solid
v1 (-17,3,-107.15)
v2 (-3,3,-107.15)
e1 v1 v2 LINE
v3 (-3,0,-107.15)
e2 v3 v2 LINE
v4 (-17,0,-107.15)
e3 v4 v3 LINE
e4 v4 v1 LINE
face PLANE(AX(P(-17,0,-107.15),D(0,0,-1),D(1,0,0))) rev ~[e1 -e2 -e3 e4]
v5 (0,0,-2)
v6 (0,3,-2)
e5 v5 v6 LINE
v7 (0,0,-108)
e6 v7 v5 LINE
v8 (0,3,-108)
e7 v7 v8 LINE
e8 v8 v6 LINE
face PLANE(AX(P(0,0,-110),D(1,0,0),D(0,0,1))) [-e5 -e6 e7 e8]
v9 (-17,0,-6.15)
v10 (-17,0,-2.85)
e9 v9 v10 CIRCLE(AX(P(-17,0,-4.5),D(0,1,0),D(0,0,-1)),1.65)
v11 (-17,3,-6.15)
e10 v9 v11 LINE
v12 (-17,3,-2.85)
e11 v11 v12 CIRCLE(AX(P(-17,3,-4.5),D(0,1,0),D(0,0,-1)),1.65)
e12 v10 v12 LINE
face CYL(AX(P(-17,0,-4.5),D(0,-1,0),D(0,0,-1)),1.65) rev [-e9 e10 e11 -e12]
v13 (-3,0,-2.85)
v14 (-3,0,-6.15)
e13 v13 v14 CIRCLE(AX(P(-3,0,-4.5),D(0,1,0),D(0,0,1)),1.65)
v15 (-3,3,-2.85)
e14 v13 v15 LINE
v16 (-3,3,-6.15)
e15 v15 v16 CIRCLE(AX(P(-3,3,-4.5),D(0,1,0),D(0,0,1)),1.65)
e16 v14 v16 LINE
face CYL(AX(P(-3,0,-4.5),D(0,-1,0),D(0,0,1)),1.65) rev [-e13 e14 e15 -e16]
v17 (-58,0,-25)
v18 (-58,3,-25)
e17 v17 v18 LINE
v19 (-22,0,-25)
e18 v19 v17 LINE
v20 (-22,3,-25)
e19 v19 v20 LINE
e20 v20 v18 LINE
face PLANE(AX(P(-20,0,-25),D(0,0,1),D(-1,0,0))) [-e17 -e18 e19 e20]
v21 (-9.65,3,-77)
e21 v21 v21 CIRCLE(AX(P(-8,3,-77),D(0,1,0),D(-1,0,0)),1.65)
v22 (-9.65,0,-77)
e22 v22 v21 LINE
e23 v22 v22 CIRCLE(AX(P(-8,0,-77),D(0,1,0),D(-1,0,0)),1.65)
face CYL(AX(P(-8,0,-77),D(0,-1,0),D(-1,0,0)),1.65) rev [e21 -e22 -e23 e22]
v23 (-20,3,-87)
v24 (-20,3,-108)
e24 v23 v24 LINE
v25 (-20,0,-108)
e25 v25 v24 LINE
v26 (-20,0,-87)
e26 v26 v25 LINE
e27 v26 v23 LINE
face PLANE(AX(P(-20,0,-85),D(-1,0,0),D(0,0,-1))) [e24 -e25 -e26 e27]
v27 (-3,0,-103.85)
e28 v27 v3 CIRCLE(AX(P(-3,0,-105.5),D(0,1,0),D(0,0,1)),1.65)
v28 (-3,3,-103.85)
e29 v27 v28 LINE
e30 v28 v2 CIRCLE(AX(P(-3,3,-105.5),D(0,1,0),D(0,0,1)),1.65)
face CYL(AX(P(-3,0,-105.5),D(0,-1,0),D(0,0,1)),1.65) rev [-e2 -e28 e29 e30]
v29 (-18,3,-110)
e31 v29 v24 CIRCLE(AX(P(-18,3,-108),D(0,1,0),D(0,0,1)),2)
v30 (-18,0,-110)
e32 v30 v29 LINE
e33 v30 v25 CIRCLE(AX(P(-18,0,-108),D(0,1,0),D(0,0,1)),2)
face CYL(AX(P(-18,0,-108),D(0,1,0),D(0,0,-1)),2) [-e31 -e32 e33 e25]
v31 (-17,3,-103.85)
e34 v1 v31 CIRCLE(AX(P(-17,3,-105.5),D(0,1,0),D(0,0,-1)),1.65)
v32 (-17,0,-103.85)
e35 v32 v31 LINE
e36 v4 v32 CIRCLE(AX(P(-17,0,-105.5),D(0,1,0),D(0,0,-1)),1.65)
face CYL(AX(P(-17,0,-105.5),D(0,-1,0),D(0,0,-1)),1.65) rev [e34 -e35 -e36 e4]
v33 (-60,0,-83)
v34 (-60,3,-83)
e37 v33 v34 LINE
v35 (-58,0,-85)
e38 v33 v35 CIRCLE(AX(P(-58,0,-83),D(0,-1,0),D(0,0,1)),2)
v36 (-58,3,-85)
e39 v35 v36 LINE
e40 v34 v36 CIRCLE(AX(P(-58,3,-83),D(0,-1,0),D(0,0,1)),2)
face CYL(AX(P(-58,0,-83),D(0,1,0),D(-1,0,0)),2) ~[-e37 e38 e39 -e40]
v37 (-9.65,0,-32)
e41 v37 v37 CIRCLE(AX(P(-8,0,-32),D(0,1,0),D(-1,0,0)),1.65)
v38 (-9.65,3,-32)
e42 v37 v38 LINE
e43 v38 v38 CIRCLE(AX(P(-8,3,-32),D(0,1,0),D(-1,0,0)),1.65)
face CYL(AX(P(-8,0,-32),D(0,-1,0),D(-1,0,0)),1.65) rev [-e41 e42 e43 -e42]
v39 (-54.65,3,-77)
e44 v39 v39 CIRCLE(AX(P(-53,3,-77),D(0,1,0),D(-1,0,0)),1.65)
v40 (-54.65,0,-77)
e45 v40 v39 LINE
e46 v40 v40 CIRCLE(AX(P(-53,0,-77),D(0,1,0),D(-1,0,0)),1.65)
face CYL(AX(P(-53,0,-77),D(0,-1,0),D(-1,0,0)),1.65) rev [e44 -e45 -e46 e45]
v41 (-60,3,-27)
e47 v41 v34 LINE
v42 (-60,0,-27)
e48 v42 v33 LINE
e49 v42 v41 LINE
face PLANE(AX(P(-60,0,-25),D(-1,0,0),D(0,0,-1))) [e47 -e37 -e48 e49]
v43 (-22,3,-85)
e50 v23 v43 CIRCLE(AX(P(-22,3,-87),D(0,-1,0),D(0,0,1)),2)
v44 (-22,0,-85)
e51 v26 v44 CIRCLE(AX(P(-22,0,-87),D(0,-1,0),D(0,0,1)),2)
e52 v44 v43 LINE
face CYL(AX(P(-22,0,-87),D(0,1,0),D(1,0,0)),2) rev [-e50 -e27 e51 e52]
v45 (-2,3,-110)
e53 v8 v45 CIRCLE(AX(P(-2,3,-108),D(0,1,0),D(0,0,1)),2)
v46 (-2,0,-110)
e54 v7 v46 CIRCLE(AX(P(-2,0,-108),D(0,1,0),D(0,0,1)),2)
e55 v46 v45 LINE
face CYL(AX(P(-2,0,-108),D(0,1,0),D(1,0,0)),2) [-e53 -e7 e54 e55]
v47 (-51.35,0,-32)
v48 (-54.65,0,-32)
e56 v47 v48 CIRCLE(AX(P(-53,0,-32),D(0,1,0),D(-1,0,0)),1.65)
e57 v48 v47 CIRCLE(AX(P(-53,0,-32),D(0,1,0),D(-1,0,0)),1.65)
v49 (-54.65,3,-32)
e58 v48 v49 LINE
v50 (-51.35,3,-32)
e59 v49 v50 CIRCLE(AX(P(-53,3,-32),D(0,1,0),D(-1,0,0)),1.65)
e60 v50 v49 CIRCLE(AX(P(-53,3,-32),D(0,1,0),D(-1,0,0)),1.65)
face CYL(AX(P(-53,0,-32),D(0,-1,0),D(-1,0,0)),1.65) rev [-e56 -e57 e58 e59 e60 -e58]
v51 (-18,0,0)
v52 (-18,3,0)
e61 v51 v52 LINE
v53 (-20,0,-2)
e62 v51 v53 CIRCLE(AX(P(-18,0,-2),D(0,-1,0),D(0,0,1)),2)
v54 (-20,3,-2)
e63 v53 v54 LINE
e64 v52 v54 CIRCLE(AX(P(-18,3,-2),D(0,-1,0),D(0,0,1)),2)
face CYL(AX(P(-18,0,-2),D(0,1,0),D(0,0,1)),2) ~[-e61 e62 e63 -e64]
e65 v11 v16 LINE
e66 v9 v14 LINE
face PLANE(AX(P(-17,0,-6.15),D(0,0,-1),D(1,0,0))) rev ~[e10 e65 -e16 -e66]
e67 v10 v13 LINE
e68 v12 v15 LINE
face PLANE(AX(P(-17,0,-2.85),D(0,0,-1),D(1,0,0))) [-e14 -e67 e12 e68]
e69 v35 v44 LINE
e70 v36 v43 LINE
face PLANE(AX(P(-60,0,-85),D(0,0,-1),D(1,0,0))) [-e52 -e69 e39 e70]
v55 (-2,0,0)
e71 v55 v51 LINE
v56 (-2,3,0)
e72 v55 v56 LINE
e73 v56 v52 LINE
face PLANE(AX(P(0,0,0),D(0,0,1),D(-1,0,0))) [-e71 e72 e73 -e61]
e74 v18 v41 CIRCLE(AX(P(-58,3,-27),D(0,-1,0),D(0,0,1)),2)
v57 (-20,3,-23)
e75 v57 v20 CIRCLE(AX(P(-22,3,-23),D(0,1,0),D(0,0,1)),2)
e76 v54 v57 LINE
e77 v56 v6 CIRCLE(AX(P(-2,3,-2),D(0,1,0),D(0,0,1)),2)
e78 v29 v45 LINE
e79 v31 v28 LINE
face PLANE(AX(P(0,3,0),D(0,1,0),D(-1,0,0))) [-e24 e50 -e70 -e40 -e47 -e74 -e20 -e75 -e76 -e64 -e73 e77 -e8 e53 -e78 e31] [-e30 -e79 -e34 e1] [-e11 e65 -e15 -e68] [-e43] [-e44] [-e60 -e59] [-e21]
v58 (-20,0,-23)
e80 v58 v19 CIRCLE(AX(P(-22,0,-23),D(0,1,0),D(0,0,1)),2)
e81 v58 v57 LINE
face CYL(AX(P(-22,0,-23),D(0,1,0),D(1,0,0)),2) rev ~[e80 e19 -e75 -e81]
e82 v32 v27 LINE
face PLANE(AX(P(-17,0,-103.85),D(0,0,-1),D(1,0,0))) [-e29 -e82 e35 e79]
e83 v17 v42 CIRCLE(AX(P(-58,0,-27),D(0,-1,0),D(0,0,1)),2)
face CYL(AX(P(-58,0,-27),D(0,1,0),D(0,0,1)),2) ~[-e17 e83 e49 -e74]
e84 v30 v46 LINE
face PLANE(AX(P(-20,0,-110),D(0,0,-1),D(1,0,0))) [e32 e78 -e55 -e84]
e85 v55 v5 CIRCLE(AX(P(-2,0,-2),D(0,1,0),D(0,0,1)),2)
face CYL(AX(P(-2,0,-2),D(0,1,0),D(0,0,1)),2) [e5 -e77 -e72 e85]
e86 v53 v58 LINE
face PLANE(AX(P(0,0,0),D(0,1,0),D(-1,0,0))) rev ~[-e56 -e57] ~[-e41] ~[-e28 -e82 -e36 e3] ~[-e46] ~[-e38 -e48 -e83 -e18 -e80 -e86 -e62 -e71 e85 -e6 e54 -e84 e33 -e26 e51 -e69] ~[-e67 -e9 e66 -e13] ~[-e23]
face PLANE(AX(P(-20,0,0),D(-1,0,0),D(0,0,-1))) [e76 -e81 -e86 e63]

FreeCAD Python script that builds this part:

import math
import FreeCAD as App
import Part
import Sketcher

V = App.Vector
Q = App.Units.Quantity


def edges_at(feature, points):
    """Names of the edges that pass closest to the given points."""
    edges = feature.Shape.Edges
    near = lambda p: min(range(len(edges)), key=lambda i: edges[i].distToShape(Part.Vertex(*p))[0])
    return sorted({f"Edge{near(p) + 1}" for p in points})

doc = App.newDocument("Part")
body = doc.addObject("PartDesign::Body", "Body")

# Sketch on XZ plane
sketch1 = body.newObject("Sketcher::SketchObject", "Sketch")
sketch1.AttachmentSupport = (doc.getObject("XZ_Plane"), [""])
sketch1.MapMode = "FlatFace"
sketch1.addGeometry(Part.LineSegment(V(-20, 0, 0), V(0, 0, 0)), False)
sketch1.addGeometry(Part.LineSegment(V(0, 0, 0), V(0, -110, 0)), False)
sketch1.addGeometry(Part.LineSegment(V(0, -110, 0), V(-20, -110, 0)), False)
sketch1.addGeometry(Part.LineSegment(V(-20, -110, 0), V(-20, -85, 0)), False)
sketch1.addGeometry(Part.LineSegment(V(-20, -85, 0), V(-60, -85, 0)), False)
sketch1.addGeometry(Part.LineSegment(V(-60, -85, 0), V(-60, -25, 0)), False)
sketch1.addGeometry(Part.LineSegment(V(-60, -25, 0), V(-20, -25, 0)), False)
sketch1.addGeometry(Part.LineSegment(V(-20, -25, 0), V(-20, 0, 0)), False)
sketch1.addGeometry(Part.LineSegment(V(-3, -103.8, 0), V(-17, -103.8, 0)), False)
sketch1.addGeometry(Part.ArcOfCircle(Part.Circle(V(-17, -105.5, 0), V(0, 0, 1), 1.7), math.radians(90), math.radians(270)), False)
sketch1.addGeometry(Part.LineSegment(V(-17, -107.2, 0), V(-3, -107.2, 0)), False)
sketch1.addGeometry(Part.ArcOfCircle(Part.Circle(V(-3, -105.5, 0), V(0, 0, 1), 1.7), math.radians(-90), math.radians(90)), False)
sketch1.addGeometry(Part.Circle(V(-8, -77, 0), V(0, 0, 1), 1.6), False)
sketch1.addGeometry(Part.Circle(V(-8, -32, 0), V(0, 0, 1), 1.6), False)
sketch1.addGeometry(Part.LineSegment(V(-3, -2.9, 0), V(-17, -2.9, 0)), False)
sketch1.addGeometry(Part.ArcOfCircle(Part.Circle(V(-17, -4.5, 0), V(0, 0, 1), 1.7), math.radians(90), math.radians(270)), False)
sketch1.addGeometry(Part.LineSegment(V(-17, -6.2, 0), V(-3, -6.2, 0)), False)
sketch1.addGeometry(Part.ArcOfCircle(Part.Circle(V(-3, -4.5, 0), V(0, 0, 1), 1.6), math.radians(-90), math.radians(90)), False)
sketch1.addGeometry(Part.Circle(V(-53, -32, 0), V(0, 0, 1), 1.6), False)
sketch1.addGeometry(Part.Circle(V(-53, -77, 0), V(0, 0, 1), 1.6), False)
sketch1.addConstraint(Sketcher.Constraint("Coincident", 0, 2, 1, 1))
sketch1.addConstraint(Sketcher.Constraint("Coincident", 1, 2, 2, 1))
sketch1.addConstraint(Sketcher.Constraint("Coincident", 2, 2, 3, 1))
sketch1.addConstraint(Sketcher.Constraint("Coincident", 3, 2, 4, 1))
sketch1.addConstraint(Sketcher.Constraint("Coincident", 4, 2, 5, 1))
sketch1.addConstraint(Sketcher.Constraint("Coincident", 5, 2, 6, 1))
sketch1.addConstraint(Sketcher.Constraint("Coincident", 6, 2, 7, 1))
sketch1.addConstraint(Sketcher.Constraint("Coincident", 7, 2, 0, 1))
sketch1.addConstraint(Sketcher.Constraint("Tangent", 8, 2, 9, 1))
sketch1.addConstraint(Sketcher.Constraint("Tangent", 9, 2, 10, 1))
sketch1.addConstraint(Sketcher.Constraint("Tangent", 10, 2, 11, 1))
sketch1.addConstraint(Sketcher.Constraint("Tangent", 11, 2, 8, 1))
sketch1.addConstraint(Sketcher.Constraint("Tangent", 14, 2, 15, 1))
sketch1.addConstraint(Sketcher.Constraint("Tangent", 15, 2, 16, 1))
sketch1.addConstraint(Sketcher.Constraint("Tangent", 16, 2, 17, 1))
sketch1.addConstraint(Sketcher.Constraint("Tangent", 17, 2, 14, 1))
sketch1.addConstraint(Sketcher.Constraint("Horizontal", 0))
sketch1.addConstraint(Sketcher.Constraint("Vertical", 1))
sketch1.addConstraint(Sketcher.Constraint("Horizontal", 2))
sketch1.addConstraint(Sketcher.Constraint("Vertical", 3))
sketch1.addConstraint(Sketcher.Constraint("Horizontal", 4))
sketch1.addConstraint(Sketcher.Constraint("Vertical", 5))
sketch1.addConstraint(Sketcher.Constraint("Horizontal", 6))
sketch1.addConstraint(Sketcher.Constraint("Vertical", 7))
sketch1.addConstraint(Sketcher.Constraint("Horizontal", 8))
sketch1.addConstraint(Sketcher.Constraint("Horizontal", 10))
sketch1.addConstraint(Sketcher.Constraint("Horizontal", 14))
sketch1.addConstraint(Sketcher.Constraint("Horizontal", 16))
sketch1.addConstraint(Sketcher.Constraint("Coincident", 0, 2, -1, 1))
sketch1.addConstraint(Sketcher.Constraint("Equal", 11, 12))
sketch1.addConstraint(Sketcher.Constraint("Equal", 12, 13))
sketch1.addConstraint(Sketcher.Constraint("Equal", 13, 15))
sketch1.addConstraint(Sketcher.Constraint("Equal", 17, 18))
sketch1.addConstraint(Sketcher.Constraint("Equal", 18, 19))
sketch1.addConstraint(Sketcher.Constraint("Horizontal", 13, 3, 18, 3))
sketch1.addConstraint(Sketcher.Constraint("Horizontal", 12, 3, 19, 3))
sketch1.addConstraint(Sketcher.Constraint("Vertical", 12, 3, 13, 3))
sketch1.addConstraint(Sketcher.Constraint("Vertical", 9, 3, 15, 3))
sketch1.addConstraint(Sketcher.Constraint("Vertical", 11, 3, 17, 3))
sketch1.addConstraint(Sketcher.Constraint("Vertical", 18, 3, 19, 3))
sketch1.addConstraint(Sketcher.Constraint("Vertical", 3, 2, 6, 2))
sketch1.addConstraint(Sketcher.Constraint("Equal", 3, 7))
sketch1.addConstraint(Sketcher.Constraint("Diameter", 12, Q("3.3 mm")))
sketch1.addConstraint(Sketcher.Constraint("DistanceX", 0, 1, 0, 2, Q("20 mm")))
sketch1.addConstraint(Sketcher.Constraint("DistanceY", 1, 2, 1, 1, Q("110 mm")))
sketch1.addConstraint(Sketcher.Constraint("DistanceY", 3, 1, 3, 2, Q("25 mm")))
sketch1.addConstraint(Sketcher.Constraint("DistanceX", 11, 3, -1, 1, Q("3 mm")))
sketch1.addConstraint(Sketcher.Constraint("DistanceX", 4, 2, -1, 1, Q("60 mm")))
sketch1.addConstraint(Sketcher.Constraint("DistanceY", 12, 3, 13, 3, Q("45 mm")))
sketch1.addConstraint(Sketcher.Constraint("DistanceY", 9, 3, 15, 3, Q("101 mm")))
sketch1.addConstraint(Sketcher.Constraint("DistanceX", 18, 3, 13, 3, Q("45 mm")))
sketch1.addConstraint(Sketcher.Constraint("DistanceX", 2, 2, 9, 3, Q("3 mm")))
sketch1.addConstraint(Sketcher.Constraint("DistanceX", 4, 2, 19, 3, Q("7 mm")))
sketch1.addConstraint(Sketcher.Constraint("DistanceY", 18, 3, 5, 2, Q("7 mm")))
sketch1.addConstraint(Sketcher.Constraint("DistanceY", 14, 2, -1, 1, Q("2.85 mm")))
pad1 = body.newObject("PartDesign::Pad", "Pad")
pad1.Profile = sketch1
pad1.Length = 3
pad1.Reversed = True
doc.recompute()

fillet = body.newObject("PartDesign::Fillet", "Fillet")
fillet.Base = (pad1, edges_at(pad1, [
    (0, 1.5, 0),
    (0, 1.5, -110),
    (-20, 1.5, -110),
    (-20, 1.5, -85),
    (-60, 1.5, -85),
    (-60, 1.5, -25),
    (-20, 1.5, -25),
    (-20, 1.5, 0),
]))
fillet.Radius = 2

doc.recompute()
